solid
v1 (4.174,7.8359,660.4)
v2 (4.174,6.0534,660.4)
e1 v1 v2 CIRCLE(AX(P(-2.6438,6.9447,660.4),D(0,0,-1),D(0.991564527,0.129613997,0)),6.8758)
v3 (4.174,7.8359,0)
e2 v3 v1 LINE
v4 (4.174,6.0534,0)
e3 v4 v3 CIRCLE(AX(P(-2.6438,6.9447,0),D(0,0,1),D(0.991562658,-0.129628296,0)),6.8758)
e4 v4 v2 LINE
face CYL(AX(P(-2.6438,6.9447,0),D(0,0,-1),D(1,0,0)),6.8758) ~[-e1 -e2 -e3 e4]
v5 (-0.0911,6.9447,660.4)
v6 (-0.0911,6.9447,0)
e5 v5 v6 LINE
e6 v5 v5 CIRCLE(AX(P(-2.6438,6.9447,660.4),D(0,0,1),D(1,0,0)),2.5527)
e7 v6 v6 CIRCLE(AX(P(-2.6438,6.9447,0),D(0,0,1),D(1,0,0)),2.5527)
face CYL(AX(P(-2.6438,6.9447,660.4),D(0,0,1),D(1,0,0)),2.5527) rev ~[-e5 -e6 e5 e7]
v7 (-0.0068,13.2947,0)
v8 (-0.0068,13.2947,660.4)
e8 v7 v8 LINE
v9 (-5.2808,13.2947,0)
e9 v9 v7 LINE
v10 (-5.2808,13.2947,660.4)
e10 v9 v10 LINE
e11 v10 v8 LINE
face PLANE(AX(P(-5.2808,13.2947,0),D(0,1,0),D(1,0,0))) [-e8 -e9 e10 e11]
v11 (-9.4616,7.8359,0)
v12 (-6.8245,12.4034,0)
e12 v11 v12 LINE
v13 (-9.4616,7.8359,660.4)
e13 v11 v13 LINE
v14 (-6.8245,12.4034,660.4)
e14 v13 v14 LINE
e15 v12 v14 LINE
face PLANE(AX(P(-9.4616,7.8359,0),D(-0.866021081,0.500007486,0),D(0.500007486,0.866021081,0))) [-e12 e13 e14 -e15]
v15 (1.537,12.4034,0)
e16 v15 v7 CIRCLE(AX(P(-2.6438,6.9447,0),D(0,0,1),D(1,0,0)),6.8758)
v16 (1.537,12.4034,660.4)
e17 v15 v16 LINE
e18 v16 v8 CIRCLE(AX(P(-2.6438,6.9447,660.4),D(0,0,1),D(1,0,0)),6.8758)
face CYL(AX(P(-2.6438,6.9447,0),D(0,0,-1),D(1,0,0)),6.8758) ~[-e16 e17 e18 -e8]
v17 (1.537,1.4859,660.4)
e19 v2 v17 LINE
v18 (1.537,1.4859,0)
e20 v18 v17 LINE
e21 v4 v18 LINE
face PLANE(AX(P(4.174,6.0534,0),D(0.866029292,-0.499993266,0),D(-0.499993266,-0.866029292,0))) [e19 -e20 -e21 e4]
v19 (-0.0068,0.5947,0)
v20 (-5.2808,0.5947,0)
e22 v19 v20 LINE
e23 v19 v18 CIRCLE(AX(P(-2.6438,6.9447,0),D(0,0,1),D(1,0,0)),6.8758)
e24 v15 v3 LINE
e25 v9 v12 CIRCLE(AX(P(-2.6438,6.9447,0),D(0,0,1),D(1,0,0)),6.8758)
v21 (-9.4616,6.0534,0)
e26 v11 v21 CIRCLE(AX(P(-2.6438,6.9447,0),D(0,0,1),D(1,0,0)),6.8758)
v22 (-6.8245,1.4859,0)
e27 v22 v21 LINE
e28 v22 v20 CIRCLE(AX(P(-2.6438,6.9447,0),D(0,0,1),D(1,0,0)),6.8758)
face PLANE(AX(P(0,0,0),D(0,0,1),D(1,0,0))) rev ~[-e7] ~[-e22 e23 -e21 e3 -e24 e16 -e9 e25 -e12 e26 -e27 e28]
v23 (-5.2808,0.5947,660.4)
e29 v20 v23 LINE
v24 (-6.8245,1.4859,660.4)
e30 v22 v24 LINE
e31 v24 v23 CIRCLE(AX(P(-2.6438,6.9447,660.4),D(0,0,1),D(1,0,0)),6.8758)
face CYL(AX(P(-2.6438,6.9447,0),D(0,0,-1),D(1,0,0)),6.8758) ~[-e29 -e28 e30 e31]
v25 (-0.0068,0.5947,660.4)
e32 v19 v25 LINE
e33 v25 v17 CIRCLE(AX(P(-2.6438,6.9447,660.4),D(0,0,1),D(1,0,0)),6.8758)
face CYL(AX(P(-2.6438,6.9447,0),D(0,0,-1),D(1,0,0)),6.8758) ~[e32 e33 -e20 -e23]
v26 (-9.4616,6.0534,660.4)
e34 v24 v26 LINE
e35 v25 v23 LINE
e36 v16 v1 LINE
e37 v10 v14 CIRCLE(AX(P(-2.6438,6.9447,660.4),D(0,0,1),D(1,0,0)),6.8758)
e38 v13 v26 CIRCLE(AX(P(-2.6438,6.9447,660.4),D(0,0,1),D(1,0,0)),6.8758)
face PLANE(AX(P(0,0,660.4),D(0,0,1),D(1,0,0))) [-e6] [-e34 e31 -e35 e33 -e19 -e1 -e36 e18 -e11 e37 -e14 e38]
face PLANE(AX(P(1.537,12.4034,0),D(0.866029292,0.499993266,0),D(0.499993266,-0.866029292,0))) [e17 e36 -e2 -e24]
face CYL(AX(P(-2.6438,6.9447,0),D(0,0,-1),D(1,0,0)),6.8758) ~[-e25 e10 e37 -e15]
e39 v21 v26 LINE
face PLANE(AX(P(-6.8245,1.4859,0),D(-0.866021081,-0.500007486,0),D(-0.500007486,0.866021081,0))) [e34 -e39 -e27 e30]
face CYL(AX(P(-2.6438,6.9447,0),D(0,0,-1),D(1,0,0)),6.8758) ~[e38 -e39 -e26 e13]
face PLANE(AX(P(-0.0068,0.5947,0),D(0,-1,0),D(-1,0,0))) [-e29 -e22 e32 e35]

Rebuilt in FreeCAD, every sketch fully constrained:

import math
import FreeCAD as App
import Part
import Sketcher

V = App.Vector
Q = App.Units.Quantity

doc = App.newDocument("Part")
body = doc.addObject("PartDesign::Body", "Body")

sketch1 = body.newObject("Sketcher::SketchObject", "Sketch")
sketch1.AttachmentSupport = (doc.getObject("XY_Plane"), [""])
sketch1.MapMode = "FlatFace"
sketch1.addGeometry([
    Part.ArcOfCircle(Part.Circle(V(-2.6, 6.9, 0), V(0, 0, 1), 6.9), math.radians(-7.45), math.radians(7.45)),
    Part.LineSegment(V(4.2, 7.8, 0), V(1.5, 12.4, 0)),
    Part.ArcOfCircle(Part.Circle(V(-2.6, 6.9, 0), V(0, 0, 1), 6.9), math.radians(52.55), math.radians(67.45)),
    Part.LineSegment(V(0, 13.3, 0), V(-5.3, 13.3, 0)),
    Part.ArcOfCircle(Part.Circle(V(-2.6, 6.9, 0), V(0, 0, 1), 6.9), math.radians(112.55), math.radians(127.45)),
    Part.LineSegment(V(-6.8, 12.4, 0), V(-9.5, 7.8, 0)),
    Part.ArcOfCircle(Part.Circle(V(-2.6, 6.9, 0), V(0, 0, 1), 6.9), math.radians(172.55), math.radians(187.45)),
    Part.LineSegment(V(-9.5, 6.1, 0), V(-6.8, 1.5, 0)),
    Part.ArcOfCircle(Part.Circle(V(-2.6, 6.9, 0), V(0, 0, 1), 6.9), math.radians(-127.45), math.radians(-112.55)),
    Part.LineSegment(V(-5.3, 0.6, 0), V(0, 0.6, 0)),
    Part.ArcOfCircle(Part.Circle(V(-2.6, 6.9, 0), V(0, 0, 1), 6.9), math.radians(-67.45), math.radians(-52.55)),
    Part.LineSegment(V(1.5, 1.5, 0), V(4.2, 6.1, 0)),
], False)
sketch1.addConstraint([
    Sketcher.Constraint("Coincident", 0, 2, 1, 1),
    Sketcher.Constraint("Coincident", 1, 2, 2, 1),
    Sketcher.Constraint("Coincident", 2, 2, 3, 1),
    Sketcher.Constraint("Coincident", 3, 2, 4, 1),
    Sketcher.Constraint("Coincident", 4, 2, 5, 1),
    Sketcher.Constraint("Coincident", 5, 2, 6, 1),
    Sketcher.Constraint("Coincident", 6, 2, 7, 1),
    Sketcher.Constraint("Coincident", 7, 2, 8, 1),
    Sketcher.Constraint("Coincident", 8, 2, 9, 1),
    Sketcher.Constraint("Coincident", 9, 2, 10, 1),
    Sketcher.Constraint("Coincident", 10, 2, 11, 1),
    Sketcher.Constraint("Coincident", 11, 2, 0, 1),
    Sketcher.Constraint("Horizontal", 3),
    Sketcher.Constraint("Horizontal", 9),
    Sketcher.Constraint("Coincident", 2, 3, 0, 3),
    Sketcher.Constraint("Coincident", 4, 3, 0, 3),
    Sketcher.Constraint("Coincident", 6, 3, 0, 3),
    Sketcher.Constraint("Coincident", 8, 3, 0, 3),
    Sketcher.Constraint("Coincident", 10, 3, 0, 3),
    Sketcher.Constraint("Equal", 0, 2),
    Sketcher.Constraint("Equal", 2, 4),
    Sketcher.Constraint("Equal", 4, 6),
    Sketcher.Constraint("Equal", 6, 8),
    Sketcher.Constraint("Equal", 8, 10),
    Sketcher.Constraint("Parallel", 1, 7),
    Sketcher.Constraint("Parallel", 5, 11),
    Sketcher.Constraint("Horizontal", 1, 2, 4, 2),
    Sketcher.Constraint("Horizontal", 0, 2, 5, 2),
    Sketcher.Constraint("Horizontal", 7, 2, 10, 2),
    Sketcher.Constraint("Vertical", 5, 2, 6, 2),
    Sketcher.Constraint("Vertical", 3, 2, 8, 2),
    Sketcher.Constraint("Radius", 0, Q("0.2707 in")),
    Sketcher.Constraint("Angle", 1, Q("119.9996 deg")),
    Sketcher.Constraint("DistanceY", 0, 3, 2, 2, Q("0.25 in")),
    Sketcher.Constraint("DistanceY", 10, 2, 0, 2, Q("0.25 in")),
    Sketcher.Constraint("DistanceY", -1, 1, 0, 2, Q("0.3085 in")),
    Sketcher.Constraint("DistanceX", -1, 1, 1, 2, Q("0.0605 in")),
])
pad1 = body.newObject("PartDesign::Pad", "Pad")
pad1.Profile = sketch1
pad1.Length = Q("26 in")

sketch2 = body.newObject("Sketcher::SketchObject", "Sketch001")
sketch2.AttachmentSupport = (doc.getObject("XY_Plane"), [""])
sketch2.MapMode = "FlatFace"
sketch2.AttachmentOffset = App.Placement(V(0, 0, 26 * 25.4), App.Rotation())
sketch2.addGeometry(Part.Circle(V(-2.6, 6.9, 0), V(0, 0, 1), 2.6), False)
sketch2.addConstraint([
    Sketcher.Constraint("Diameter", 0, Q("0.201 in")),
    Sketcher.Constraint("DistanceX", 0, 3, -1, 1, Q("2.6438 mm")),
    Sketcher.Constraint("DistanceY", -1, 1, 0, 3, Q("6.9447 mm")),
])
pocket1 = body.newObject("PartDesign::Pocket", "Pocket")
pocket1.Profile = sketch2
pocket1.Length = Q("26 in")

doc.recompute()
